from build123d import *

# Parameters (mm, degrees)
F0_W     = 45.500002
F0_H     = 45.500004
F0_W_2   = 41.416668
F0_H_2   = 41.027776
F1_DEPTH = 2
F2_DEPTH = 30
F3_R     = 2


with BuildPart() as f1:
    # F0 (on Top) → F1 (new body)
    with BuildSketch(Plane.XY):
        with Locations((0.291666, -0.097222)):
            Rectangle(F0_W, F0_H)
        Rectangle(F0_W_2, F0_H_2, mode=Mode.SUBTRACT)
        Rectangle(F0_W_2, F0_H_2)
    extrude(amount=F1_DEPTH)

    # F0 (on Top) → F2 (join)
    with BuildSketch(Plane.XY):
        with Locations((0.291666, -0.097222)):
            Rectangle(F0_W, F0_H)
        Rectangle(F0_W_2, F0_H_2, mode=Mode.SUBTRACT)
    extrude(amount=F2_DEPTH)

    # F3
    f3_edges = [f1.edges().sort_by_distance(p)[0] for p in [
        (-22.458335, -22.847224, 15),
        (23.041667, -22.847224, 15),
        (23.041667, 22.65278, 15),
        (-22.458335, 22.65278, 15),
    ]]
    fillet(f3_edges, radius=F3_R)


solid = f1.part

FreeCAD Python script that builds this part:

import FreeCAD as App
import Part
import Sketcher
Q = App.Units.Quantity


def edges_at(feature, points):
    """Names of the edges that pass closest to the given points."""
    edges = feature.Shape.Edges
    near = lambda p: min(range(len(edges)), key=lambda i: edges[i].distToShape(Part.Vertex(*p))[0])
    return sorted({f"Edge{near(p) + 1}" for p in points})


def add_polygon(sketch, points):
    """Adds a closed chain of lines whose ends are joined by coincident constraints."""
    first, n = sketch.GeometryCount, len(points)
    for a, b in zip(points, points[1:] + points[:1]):
        sketch.addGeometry(Part.LineSegment(App.Vector(*a, 0), App.Vector(*b, 0)), False)
    for i in range(n):
        sketch.addConstraint(Sketcher.Constraint("Coincident", first + i, 2, first + (i + 1) % n, 1))

doc = App.newDocument("Part")
body = doc.addObject("PartDesign::Body", "Body")

# Sketch on XY plane
sketch1 = doc.addObject("Sketcher::SketchObject", "Sketch")
body.addObject(sketch1)
sketch1.AttachmentSupport = (doc.XY_Plane, [""])
sketch1.MapMode = "FlatFace"
add_polygon(sketch1, [(-22, 23), (-22, -23), (23, -23), (23, 23)])  # lines 0-3
sketch1.addConstraint(Sketcher.Constraint("Vertical", 0))
sketch1.addConstraint(Sketcher.Constraint("Horizontal", 1))
sketch1.addConstraint(Sketcher.Constraint("Vertical", 2))
sketch1.addConstraint(Sketcher.Constraint("Horizontal", 3))
sketch1.addConstraint(Sketcher.Constraint("DistanceX", 1, 1, 1, 2, Q("45.500002 mm")))
sketch1.addConstraint(Sketcher.Constraint("DistanceY", 0, 2, 0, 1, Q("45.500004 mm")))
sketch1.addConstraint(Sketcher.Constraint("DistanceY", -1, 1, 2, 2, Q("22.65278 mm")))
sketch1.addConstraint(Sketcher.Constraint("DistanceX", 0, 2, -1, 1, Q("22.458335 mm")))
pad1 = doc.addObject("PartDesign::Pad", "Pad")
body.addObject(pad1)
pad1.Profile = sketch1
pad1.Length = 2

# Sketch on XY plane
sketch2 = doc.addObject("Sketcher::SketchObject", "Sketch001")
body.addObject(sketch2)
sketch2.AttachmentSupport = (doc.XY_Plane, [""])
sketch2.MapMode = "FlatFace"
add_polygon(sketch2, [(-22, 23), (-22, -23), (23, -23), (23, 23)])  # lines 0-3
add_polygon(sketch2, [(21, -21), (-21, -21), (-21, 21), (21, 21)])  # lines 4-7
sketch2.addConstraint(Sketcher.Constraint("Vertical", 0))
sketch2.addConstraint(Sketcher.Constraint("Horizontal", 1))
sketch2.addConstraint(Sketcher.Constraint("Vertical", 2))
sketch2.addConstraint(Sketcher.Constraint("Horizontal", 3))
sketch2.addConstraint(Sketcher.Constraint("Horizontal", 4))
sketch2.addConstraint(Sketcher.Constraint("Vertical", 5))
sketch2.addConstraint(Sketcher.Constraint("Horizontal", 6))
sketch2.addConstraint(Sketcher.Constraint("Vertical", 7))
sketch2.addConstraint(Sketcher.Constraint("Symmetric", 4, 2, 6, 2, -1, 1))
sketch2.addConstraint(Sketcher.Constraint("DistanceX", 0, 2, 4, 2, Q("1.750001 mm")))
sketch2.addConstraint(Sketcher.Constraint("DistanceX", 4, 2, 1, 2, Q("43.750001 mm")))
sketch2.addConstraint(Sketcher.Constraint("DistanceX", 4, 2, 4, 1, Q("41.416668 mm")))
sketch2.addConstraint(Sketcher.Constraint("DistanceY", 0, 2, 0, 1, Q("45.500004 mm")))
sketch2.addConstraint(Sketcher.Constraint("DistanceY", 5, 1, 5, 2, Q("41.027776 mm")))
sketch2.addConstraint(Sketcher.Constraint("DistanceY", -1, 1, 2, 2, Q("22.65278 mm")))
pad2 = doc.addObject("PartDesign::Pad", "Pad001")
body.addObject(pad2)
pad2.Profile = sketch2
pad2.Length = 30
doc.recompute()

fillet = doc.addObject("PartDesign::Fillet", "Fillet")
body.addObject(fillet)
fillet.Base = (pad2, edges_at(pad2, [
    (-22.458, -22.847, 15),
    (23.042, -22.847, 15),
    (23.042, 22.653, 15),
    (-22.458, 22.653, 15),
]))
fillet.Radius = 2

doc.recompute()
